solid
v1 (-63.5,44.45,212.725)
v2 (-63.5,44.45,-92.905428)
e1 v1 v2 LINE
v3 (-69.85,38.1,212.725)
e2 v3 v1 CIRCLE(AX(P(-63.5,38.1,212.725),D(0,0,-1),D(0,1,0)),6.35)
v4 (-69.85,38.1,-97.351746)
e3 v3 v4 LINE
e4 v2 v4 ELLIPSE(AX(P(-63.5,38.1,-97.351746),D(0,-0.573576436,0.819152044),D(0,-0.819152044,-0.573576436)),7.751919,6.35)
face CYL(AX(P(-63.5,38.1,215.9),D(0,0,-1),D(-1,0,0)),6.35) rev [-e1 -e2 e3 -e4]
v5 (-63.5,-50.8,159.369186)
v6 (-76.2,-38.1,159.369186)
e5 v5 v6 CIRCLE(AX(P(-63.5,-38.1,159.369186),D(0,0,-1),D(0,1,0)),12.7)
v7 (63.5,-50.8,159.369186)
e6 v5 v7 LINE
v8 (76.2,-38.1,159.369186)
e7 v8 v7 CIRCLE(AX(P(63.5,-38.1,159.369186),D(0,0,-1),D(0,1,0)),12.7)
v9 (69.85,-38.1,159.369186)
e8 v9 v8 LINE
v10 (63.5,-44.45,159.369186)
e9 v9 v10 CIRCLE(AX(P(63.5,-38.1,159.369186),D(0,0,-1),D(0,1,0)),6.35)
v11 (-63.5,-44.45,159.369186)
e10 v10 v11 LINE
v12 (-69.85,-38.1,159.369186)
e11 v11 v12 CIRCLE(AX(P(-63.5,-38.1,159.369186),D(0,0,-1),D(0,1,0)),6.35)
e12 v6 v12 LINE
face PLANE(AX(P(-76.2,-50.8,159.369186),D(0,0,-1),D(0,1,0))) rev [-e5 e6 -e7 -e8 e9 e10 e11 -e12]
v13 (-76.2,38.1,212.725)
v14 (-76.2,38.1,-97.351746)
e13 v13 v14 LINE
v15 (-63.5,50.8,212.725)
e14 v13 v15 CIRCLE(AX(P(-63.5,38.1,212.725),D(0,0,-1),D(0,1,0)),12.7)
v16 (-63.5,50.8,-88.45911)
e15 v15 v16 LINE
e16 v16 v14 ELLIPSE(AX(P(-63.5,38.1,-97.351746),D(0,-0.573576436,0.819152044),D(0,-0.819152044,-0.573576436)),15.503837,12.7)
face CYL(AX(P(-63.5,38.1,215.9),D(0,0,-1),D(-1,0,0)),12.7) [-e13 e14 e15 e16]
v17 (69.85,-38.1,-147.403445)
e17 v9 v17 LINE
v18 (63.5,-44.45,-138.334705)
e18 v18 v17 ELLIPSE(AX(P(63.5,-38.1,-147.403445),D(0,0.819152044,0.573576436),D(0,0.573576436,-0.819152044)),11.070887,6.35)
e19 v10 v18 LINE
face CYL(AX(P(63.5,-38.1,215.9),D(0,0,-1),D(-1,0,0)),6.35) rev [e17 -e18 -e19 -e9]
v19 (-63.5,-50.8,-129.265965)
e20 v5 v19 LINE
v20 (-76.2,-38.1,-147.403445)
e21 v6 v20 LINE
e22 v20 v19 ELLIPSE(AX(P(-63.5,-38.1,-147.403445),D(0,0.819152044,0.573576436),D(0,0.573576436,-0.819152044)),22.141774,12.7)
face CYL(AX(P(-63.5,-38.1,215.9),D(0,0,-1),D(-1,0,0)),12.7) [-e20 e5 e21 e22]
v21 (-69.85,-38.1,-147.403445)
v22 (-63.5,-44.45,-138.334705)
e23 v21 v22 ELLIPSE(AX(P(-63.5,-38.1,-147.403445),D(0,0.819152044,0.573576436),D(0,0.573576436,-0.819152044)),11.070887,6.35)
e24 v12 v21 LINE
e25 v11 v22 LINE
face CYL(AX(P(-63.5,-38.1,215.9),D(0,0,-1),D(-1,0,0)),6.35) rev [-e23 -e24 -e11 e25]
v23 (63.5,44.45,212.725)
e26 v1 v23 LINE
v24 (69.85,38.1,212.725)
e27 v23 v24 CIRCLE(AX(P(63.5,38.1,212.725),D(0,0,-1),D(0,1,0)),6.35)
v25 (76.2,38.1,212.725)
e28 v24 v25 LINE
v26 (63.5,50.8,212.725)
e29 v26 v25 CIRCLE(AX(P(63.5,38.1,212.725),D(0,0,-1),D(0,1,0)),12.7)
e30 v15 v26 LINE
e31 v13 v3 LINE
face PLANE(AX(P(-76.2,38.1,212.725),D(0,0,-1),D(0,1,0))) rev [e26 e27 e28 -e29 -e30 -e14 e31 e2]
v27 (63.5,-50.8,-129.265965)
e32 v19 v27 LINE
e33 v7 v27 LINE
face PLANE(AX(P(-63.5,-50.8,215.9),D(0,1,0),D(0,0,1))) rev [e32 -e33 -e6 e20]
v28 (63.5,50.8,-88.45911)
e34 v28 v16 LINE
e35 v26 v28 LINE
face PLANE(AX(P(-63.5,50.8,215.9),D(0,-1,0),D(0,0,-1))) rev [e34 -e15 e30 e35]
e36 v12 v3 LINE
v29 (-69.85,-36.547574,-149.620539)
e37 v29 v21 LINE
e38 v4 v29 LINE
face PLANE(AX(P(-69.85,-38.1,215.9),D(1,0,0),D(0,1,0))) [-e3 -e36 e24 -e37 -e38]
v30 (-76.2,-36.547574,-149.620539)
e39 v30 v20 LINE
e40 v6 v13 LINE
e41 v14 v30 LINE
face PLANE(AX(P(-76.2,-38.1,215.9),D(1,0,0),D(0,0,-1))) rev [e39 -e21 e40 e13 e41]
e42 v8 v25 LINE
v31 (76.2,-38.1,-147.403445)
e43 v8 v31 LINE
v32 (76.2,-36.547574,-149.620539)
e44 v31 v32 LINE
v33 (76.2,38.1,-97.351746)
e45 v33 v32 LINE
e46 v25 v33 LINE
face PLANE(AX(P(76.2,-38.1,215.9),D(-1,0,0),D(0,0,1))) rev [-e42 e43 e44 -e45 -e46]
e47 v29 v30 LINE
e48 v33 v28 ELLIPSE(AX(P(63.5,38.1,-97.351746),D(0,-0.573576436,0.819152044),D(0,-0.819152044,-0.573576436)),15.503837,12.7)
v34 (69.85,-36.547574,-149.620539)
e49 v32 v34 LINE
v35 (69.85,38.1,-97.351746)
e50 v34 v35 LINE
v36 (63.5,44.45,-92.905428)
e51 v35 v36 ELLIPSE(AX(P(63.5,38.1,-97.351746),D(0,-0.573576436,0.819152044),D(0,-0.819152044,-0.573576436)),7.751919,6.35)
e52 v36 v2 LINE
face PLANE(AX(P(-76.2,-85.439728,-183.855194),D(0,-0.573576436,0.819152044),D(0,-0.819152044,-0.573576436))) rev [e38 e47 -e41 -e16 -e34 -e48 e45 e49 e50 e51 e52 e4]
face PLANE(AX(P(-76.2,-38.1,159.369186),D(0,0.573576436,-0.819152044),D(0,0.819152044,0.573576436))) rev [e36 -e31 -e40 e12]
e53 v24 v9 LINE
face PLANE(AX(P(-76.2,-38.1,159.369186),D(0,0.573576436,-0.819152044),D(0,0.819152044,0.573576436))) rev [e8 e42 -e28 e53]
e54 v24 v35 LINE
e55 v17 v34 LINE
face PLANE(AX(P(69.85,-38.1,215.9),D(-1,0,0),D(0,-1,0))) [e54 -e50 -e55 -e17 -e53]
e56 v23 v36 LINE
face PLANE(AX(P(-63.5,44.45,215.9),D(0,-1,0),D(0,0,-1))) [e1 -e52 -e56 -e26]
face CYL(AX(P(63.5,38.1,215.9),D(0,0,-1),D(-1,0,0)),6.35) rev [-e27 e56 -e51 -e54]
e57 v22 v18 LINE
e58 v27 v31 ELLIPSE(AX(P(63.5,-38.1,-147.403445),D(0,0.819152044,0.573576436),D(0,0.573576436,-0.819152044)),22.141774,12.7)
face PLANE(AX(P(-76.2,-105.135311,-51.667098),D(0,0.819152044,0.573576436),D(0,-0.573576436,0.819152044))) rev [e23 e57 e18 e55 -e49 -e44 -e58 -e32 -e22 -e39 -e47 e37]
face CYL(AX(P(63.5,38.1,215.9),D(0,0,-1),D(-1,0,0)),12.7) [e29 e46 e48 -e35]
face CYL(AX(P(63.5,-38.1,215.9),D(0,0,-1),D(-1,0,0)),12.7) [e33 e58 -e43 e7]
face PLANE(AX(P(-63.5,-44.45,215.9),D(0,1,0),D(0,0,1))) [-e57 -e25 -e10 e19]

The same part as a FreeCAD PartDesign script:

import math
import FreeCAD as App
import Part
import Sketcher
from FreeCAD import Vector
Q = App.Units.Quantity

doc = App.newDocument("Part")
params = doc.addObject("Spreadsheet::Sheet", "Params")
for row, (alias, value) in enumerate([
    ("sketch1_radius", "0.5 in"),
    ("sketch1_width", "5 in"),
    ("sketch1_height", "3 in"),
    ("sketch1_radius2", "0.25 in"),
    ("pad1_length", "17 in"),
    ("sketch2_width", "4 in"),
    ("sketch2_width2", "0.5 in"),
    ("sketch2_height", "0.125 in"),
], start=1):
    params.set(f"A{row}", alias)
    params.set(f"B{row}", "=" + value)
    params.setAlias(f"B{row}", alias)

body = doc.addObject("PartDesign::Body", "Body")

sketch1 = doc.addObject("Sketcher::SketchObject", "Sketch")
body.addObject(sketch1)
sketch1.AttachmentSupport = (doc.XY_Plane, [""])
sketch1.MapMode = "FlatFace"
sketch1.addGeometry([
    Part.LineSegment(Vector(-64, -51, 0), Vector(64, -51, 0)),
    Part.ArcOfCircle(Part.Circle(Vector(64, -38, 0), Vector(0, 0, 1), 13), math.radians(-90), math.radians(0)),
    Part.LineSegment(Vector(76, -38, 0), Vector(76, 38, 0)),
    Part.ArcOfCircle(Part.Circle(Vector(64, 38, 0), Vector(0, 0, 1), 13), math.radians(0), math.radians(90)),
    Part.LineSegment(Vector(64, 51, 0), Vector(-64, 51, 0)),
    Part.ArcOfCircle(Part.Circle(Vector(-64, 38, 0), Vector(0, 0, 1), 13), math.radians(90), math.radians(180)),
    Part.LineSegment(Vector(-76, 38, 0), Vector(-76, -38, 0)),
    Part.ArcOfCircle(Part.Circle(Vector(-64, -38, 0), Vector(0, 0, 1), 13), math.radians(180), math.radians(270)),
    Part.ArcOfCircle(Part.Circle(Vector(-64, 38, 0), Vector(0, 0, 1), 6), math.radians(90), math.radians(180)),
    Part.LineSegment(Vector(-64, 44, 0), Vector(64, 44, 0)),
    Part.ArcOfCircle(Part.Circle(Vector(64, 38, 0), Vector(0, 0, 1), 6), math.radians(0), math.radians(90)),
    Part.LineSegment(Vector(70, 38, 0), Vector(70, -38, 0)),
    Part.ArcOfCircle(Part.Circle(Vector(64, -38, 0), Vector(0, 0, 1), 6), math.radians(-90), math.radians(0)),
    Part.LineSegment(Vector(64, -44, 0), Vector(-64, -44, 0)),
    Part.ArcOfCircle(Part.Circle(Vector(-64, -38, 0), Vector(0, 0, 1), 6), math.radians(180), math.radians(270)),
    Part.LineSegment(Vector(-70, -38, 0), Vector(-70, 38, 0)),
], False)
sketch1.addConstraint([
    Sketcher.Constraint("Tangent", 0, 2, 1, 1),
    Sketcher.Constraint("Tangent", 1, 2, 2, 1),
    Sketcher.Constraint("Tangent", 2, 2, 3, 1),
    Sketcher.Constraint("Tangent", 3, 2, 4, 1),
    Sketcher.Constraint("Tangent", 4, 2, 5, 1),
    Sketcher.Constraint("Tangent", 5, 2, 6, 1),
    Sketcher.Constraint("Tangent", 6, 2, 7, 1),
    Sketcher.Constraint("Tangent", 7, 2, 0, 1),
    Sketcher.Constraint("Tangent", 8, 1, 9, 1),
    Sketcher.Constraint("Tangent", 9, 2, 10, 2),
    Sketcher.Constraint("Tangent", 10, 1, 11, 1),
    Sketcher.Constraint("Tangent", 11, 2, 12, 2),
    Sketcher.Constraint("Tangent", 12, 1, 13, 1),
    Sketcher.Constraint("Tangent", 13, 2, 14, 2),
    Sketcher.Constraint("Tangent", 14, 1, 15, 1),
    Sketcher.Constraint("Tangent", 15, 2, 8, 2),
    Sketcher.Constraint("Horizontal", 0),
    Sketcher.Constraint("Vertical", 2),
    Sketcher.Constraint("Horizontal", 4),
    Sketcher.Constraint("Vertical", 6),
    Sketcher.Constraint("Horizontal", 9),
    Sketcher.Constraint("Vertical", 11),
    Sketcher.Constraint("Horizontal", 13),
    Sketcher.Constraint("Vertical", 15),
    Sketcher.Constraint("Coincident", 8, 3, 5, 3),
    Sketcher.Constraint("Coincident", 10, 3, 3, 3),
    Sketcher.Constraint("Coincident", 12, 3, 1, 3),
    Sketcher.Constraint("Equal", 1, 3),
    Sketcher.Constraint("Equal", 3, 5),
    Sketcher.Constraint("Equal", 5, 7),
    Sketcher.Constraint("Equal", 12, 14),
    Sketcher.Constraint("Symmetric", 1, 3, 5, 3, -1, 1),
    Sketcher.Constraint("Radius", 1, Q("0.5 in")),
    Sketcher.Constraint("DistanceX", 0, 1, 0, 2, Q("5 in")),
    Sketcher.Constraint("DistanceY", 2, 1, 2, 2, Q("3 in")),
    Sketcher.Constraint("Radius", 8, Q("0.25 in")),
])
sketch1.setExpression("Constraints[32]", "Params.sketch1_radius")
sketch1.setExpression("Constraints[33]", "Params.sketch1_width")
sketch1.setExpression("Constraints[34]", "Params.sketch1_height")
sketch1.setExpression("Constraints[35]", "Params.sketch1_radius2")
pad1 = doc.addObject("PartDesign::Pad", "Pad")
body.addObject(pad1)
pad1.Profile = sketch1
pad1.setExpression("Length", "Params.pad1_length")
pad1.Midplane = True

sketch2 = doc.addObject("Sketcher::SketchObject", "Sketch001")
body.addObject(sketch2)
sketch2.AttachmentSupport = (doc.YZ_Plane, [""])
sketch2.MapMode = "FlatFace"
sketch2.addGeometry([
    Part.LineSegment(Vector(50.8, 215.9, 0), Vector(-50.8, 215.9, 0)),
    Part.LineSegment(Vector(-50.8, 215.9, 0), Vector(-50.8, 159.4, 0)),
    Part.LineSegment(Vector(-50.8, 159.4, 0), Vector(-38.1, 159.4, 0)),
    Part.LineSegment(Vector(-38.1, 159.4, 0), Vector(38.1, 212.7, 0)),
    Part.LineSegment(Vector(38.1, 212.7, 0), Vector(50.8, 212.7, 0)),
    Part.LineSegment(Vector(50.8, 212.7, 0), Vector(50.8, 215.9, 0)),
], False)
sketch2.addConstraint([
    Sketcher.Constraint("Coincident", 0, 2, 1, 1),
    Sketcher.Constraint("Coincident", 1, 2, 2, 1),
    Sketcher.Constraint("Coincident", 2, 2, 3, 1),
    Sketcher.Constraint("Coincident", 3, 2, 4, 1),
    Sketcher.Constraint("Coincident", 4, 2, 5, 1),
    Sketcher.Constraint("Coincident", 5, 2, 0, 1),
    Sketcher.Constraint("Horizontal", 0),
    Sketcher.Constraint("Vertical", 1),
    Sketcher.Constraint("Horizontal", 2),
    Sketcher.Constraint("Horizontal", 4),
    Sketcher.Constraint("Vertical", 5),
    Sketcher.Constraint("Equal", 2, 4),
    Sketcher.Constraint("DistanceX", 0, 2, 0, 1, Q("4 in")),
    Sketcher.Constraint("DistanceX", 2, 1, 2, 2, Q("0.5 in")),
    Sketcher.Constraint("DistanceX", 0, 2, -1, 1, Q("2 in")),
    Sketcher.Constraint("Angle", 3, Q("35 deg")),
    Sketcher.Constraint("DistanceY", -1, 1, 0, 2, Q("8.5 in")),
    Sketcher.Constraint("DistanceY", 5, 1, 5, 2, Q("0.125 in")),
])
sketch2.setExpression("Constraints[12]", "Params.sketch2_width")
sketch2.setExpression("Constraints[13]", "Params.sketch2_width2")
sketch2.setExpression("Constraints[17]", "Params.sketch2_height")
pocket1 = doc.addObject("PartDesign::Pocket", "Pocket")
body.addObject(pocket1)
pocket1.Profile = sketch2
pocket1.Type = "ThroughAll"
pocket1.Midplane = True

sketch3 = doc.addObject("Sketcher::SketchObject", "Sketch002")
body.addObject(sketch3)
sketch3.AttachmentSupport = (doc.YZ_Plane, [""])
sketch3.MapMode = "FlatFace"
sketch3.addGeometry([
    Part.LineSegment(Vector(77, -279, 0), Vector(77, -70, 0)),
    Part.LineSegment(Vector(77, -70, 0), Vector(-85, -184, 0)),
    Part.LineSegment(Vector(-85, -184, 0), Vector(-66, -279, 0)),
    Part.LineSegment(Vector(-66, -279, 0), Vector(77, -279, 0)),
], False)
sketch3.addConstraint([
    Sketcher.Constraint("Coincident", 0, 2, 1, 1),
    Sketcher.Constraint("Coincident", 1, 2, 2, 1),
    Sketcher.Constraint("Coincident", 2, 2, 3, 1),
    Sketcher.Constraint("Coincident", 3, 2, 0, 1),
    Sketcher.Constraint("Vertical", 0),
    Sketcher.Constraint("Horizontal", 3),
    Sketcher.Constraint("Angle", 1, Q("-145 deg")),
    Sketcher.Constraint("DistanceX", 3, 1, 3, 2, 143.046401),
    Sketcher.Constraint("DistanceY", 2, 2, 1, 2, 95.020502),
    Sketcher.Constraint("Distance", 1, 197.92738),
    Sketcher.Constraint("DistanceX", -1, 1, 0, 2, 76.69289),
    Sketcher.Constraint("DistanceY", 0, 2, -1, 1, 70.328713),
])
pocket2 = doc.addObject("PartDesign::Pocket", "Pocket001")
body.addObject(pocket2)
pocket2.Profile = sketch3
pocket2.Type = "ThroughAll"
pocket2.Midplane = True

sketch4 = doc.addObject("Sketcher::SketchObject", "Sketch003")
body.addObject(sketch4)
sketch4.AttachmentSupport = (doc.YZ_Plane, [""])
sketch4.MapMode = "FlatFace"
sketch4.AttachmentOffset = App.Placement(Vector(0, 0, 3 * 25.4), App.Rotation())
sketch4.addGeometry([
    Part.LineSegment(Vector(-21, -172, 0), Vector(-105, -52, 0)),
    Part.LineSegment(Vector(-105, -52, 0), Vector(-73, -188, 0)),
    Part.LineSegment(Vector(-73, -188, 0), Vector(-21, -172, 0)),
], False)
sketch4.addConstraint([
    Sketcher.Constraint("Coincident", 0, 2, 1, 1),
    Sketcher.Constraint("Coincident", 1, 2, 2, 1),
    Sketcher.Constraint("Coincident", 2, 2, 0, 1),
    Sketcher.Constraint("Angle", 0, Q("125 deg")),
    Sketcher.Constraint("Distance", 2, 55.178502),
    Sketcher.Constraint("DistanceY", 0, 2, -1, 1, 51.667098),
    Sketcher.Constraint("Distance", 1, 140.207431),
    Sketcher.Constraint("DistanceX", 0, 2, -1, 1, 105.135311),
    Sketcher.Constraint("DistanceX", 2, 2, -1, 1, 20.566751),
])
pocket3 = doc.addObject("PartDesign::Pocket", "Pocket002")
body.addObject(pocket3)
pocket3.Profile = sketch4
pocket3.Type = "ThroughAll"
pocket3.Midplane = True

doc.recompute()
